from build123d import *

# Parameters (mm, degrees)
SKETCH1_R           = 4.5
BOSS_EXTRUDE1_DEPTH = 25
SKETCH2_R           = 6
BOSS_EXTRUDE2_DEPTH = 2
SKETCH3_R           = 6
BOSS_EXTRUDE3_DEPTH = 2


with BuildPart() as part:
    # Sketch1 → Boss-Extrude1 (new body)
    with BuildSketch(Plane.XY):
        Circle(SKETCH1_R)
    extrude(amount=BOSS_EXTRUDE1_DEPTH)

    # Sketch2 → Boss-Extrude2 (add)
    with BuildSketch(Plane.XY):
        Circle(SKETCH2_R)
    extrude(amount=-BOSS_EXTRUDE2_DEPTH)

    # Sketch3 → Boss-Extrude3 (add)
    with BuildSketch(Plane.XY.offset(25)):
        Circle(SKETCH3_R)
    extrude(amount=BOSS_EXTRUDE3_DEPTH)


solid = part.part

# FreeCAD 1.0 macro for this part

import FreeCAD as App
import Part
import Sketcher
from FreeCAD import Vector

doc = App.newDocument("Part")
body = doc.addObject("PartDesign::Body", "Body")

# Sketch on XY plane
sketch1 = body.newObject("Sketcher::SketchObject", "Sketch")
sketch1.AttachmentSupport = (doc.getObject("XY_Plane"), [""])
sketch1.MapMode = "FlatFace"
sketch1.addGeometry(Part.Circle(Vector(0, 0, 0), Vector(0, 0, 1), 4.5), False)
sketch1.addConstraint([
    Sketcher.Constraint("Coincident", 0, 3, -1, 1),
    Sketcher.Constraint("Diameter", 0, 9.0),
])
pad1 = body.newObject("PartDesign::Pad", "Pad")
pad1.Profile = sketch1
pad1.Length = 25

# Sketch on XY plane
sketch2 = body.newObject("Sketcher::SketchObject", "Sketch001")
sketch2.AttachmentSupport = (doc.getObject("XY_Plane"), [""])
sketch2.MapMode = "FlatFace"
sketch2.addGeometry(Part.Circle(Vector(0, 0, 0), Vector(0, 0, 1), 6), False)
sketch2.addConstraint([
    Sketcher.Constraint("Coincident", 0, 3, -1, 1),
    Sketcher.Constraint("Diameter", 0, 12.0),
])
pad2 = body.newObject("PartDesign::Pad", "Pad001")
pad2.Profile = sketch2
pad2.Length = 2
pad2.Reversed = True

# Sketch on XY plane
sketch3 = body.newObject("Sketcher::SketchObject", "Sketch002")
sketch3.AttachmentSupport = (doc.getObject("XY_Plane"), [""])
sketch3.MapMode = "FlatFace"
sketch3.AttachmentOffset = App.Placement(Vector(0, 0, 25), App.Rotation())
sketch3.addGeometry(Part.Circle(Vector(0, 0, 0), Vector(0, 0, 1), 6), False)
sketch3.addConstraint([
    Sketcher.Constraint("Coincident", 0, 3, -1, 1),
    Sketcher.Constraint("Diameter", 0, 12.0),
])
pad3 = body.newObject("PartDesign::Pad", "Pad002")
pad3.Profile = sketch3
pad3.Length = 2

doc.recompute()
